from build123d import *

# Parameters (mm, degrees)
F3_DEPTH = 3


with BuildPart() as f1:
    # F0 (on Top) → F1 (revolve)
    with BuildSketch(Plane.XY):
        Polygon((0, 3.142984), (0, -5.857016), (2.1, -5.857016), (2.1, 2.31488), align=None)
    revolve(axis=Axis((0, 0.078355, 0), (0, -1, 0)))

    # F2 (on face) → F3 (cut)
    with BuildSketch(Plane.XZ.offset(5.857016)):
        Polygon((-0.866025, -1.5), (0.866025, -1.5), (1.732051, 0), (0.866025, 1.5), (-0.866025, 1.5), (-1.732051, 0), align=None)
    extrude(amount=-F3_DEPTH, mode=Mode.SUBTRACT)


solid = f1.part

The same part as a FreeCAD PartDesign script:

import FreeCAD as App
import Part
import Sketcher

V = App.Vector
Q = App.Units.Quantity


def add_polygon(sketch, points):
    """Adds a closed chain of lines whose ends are joined by coincident constraints."""
    first, n = sketch.GeometryCount, len(points)
    for a, b in zip(points, points[1:] + points[:1]):
        sketch.addGeometry(Part.LineSegment(App.Vector(*a, 0), App.Vector(*b, 0)), False)
    for i in range(n):
        sketch.addConstraint(Sketcher.Constraint("Coincident", first + i, 2, first + (i + 1) % n, 1))

doc = App.newDocument("Part")
body = doc.addObject("PartDesign::Body", "Body")

# Sketch on XY plane
sketch1 = body.newObject("Sketcher::SketchObject", "Sketch")
sketch1.AttachmentSupport = (doc.getObject("XY_Plane"), [""])
sketch1.MapMode = "FlatFace"
add_polygon(sketch1, [(0, 3.1), (0, -5.9), (2.1, -5.9), (2.1, 2.3)])  # lines 0-3
sketch1.addConstraint([
    Sketcher.Constraint("Vertical", 0),
    Sketcher.Constraint("Horizontal", 1),
    Sketcher.Constraint("Vertical", 2),
    Sketcher.Constraint("PointOnObject", 0, 2, -2),
    Sketcher.Constraint("DistanceY", 0, 2, 0, 1, 9.0),
    Sketcher.Constraint("DistanceX", 1, 1, 1, 2, 2.1),
    Sketcher.Constraint("Distance", 3, 2.257378),
    Sketcher.Constraint("DistanceY", -1, 1, 2, 2, 2.31488),
])
revolution = body.newObject("PartDesign::Revolution", "Revolution")
revolution.Profile = sketch1
revolution.ReferenceAxis = (sketch1, ["V_Axis"])
revolution.Angle = 360

# Sketch on XZ plane
sketch2 = body.newObject("Sketcher::SketchObject", "Sketch001")
sketch2.AttachmentSupport = (doc.getObject("XZ_Plane"), [""])
sketch2.MapMode = "FlatFace"
sketch2.AttachmentOffset = App.Placement(V(0, 0, 5.857016), App.Rotation())
add_polygon(sketch2, [(-0.9, -1.5), (0.9, -1.5), (1.7, 0), (0.9, 1.5), (-0.9, 1.5), (-1.7, 0)])  # lines 0-5
sketch2.addConstraint([
    Sketcher.Constraint("Horizontal", 0),
    Sketcher.Constraint("Horizontal", 3),
    Sketcher.Constraint("Symmetric", 0, 2, 3, 2, -1, 1),
    Sketcher.Constraint("Symmetric", 1, 2, 4, 2, -1, 1),
    Sketcher.Constraint("PointOnObject", 1, 2, -1),
    Sketcher.Constraint("Parallel", 2, 5),
    Sketcher.Constraint("Vertical", 0, 2, 2, 2),
    Sketcher.Constraint("Angle", 1, Q("59.999983 deg")),
    Sketcher.Constraint("DistanceY", 0, 2, 2, 2, 3.0),
    Sketcher.Constraint("DistanceX", 0, 1, 0, 2, 1.73205),
])
pocket1 = body.newObject("PartDesign::Pocket", "Pocket")
pocket1.Profile = sketch2
pocket1.Length = 3

doc.recompute()
